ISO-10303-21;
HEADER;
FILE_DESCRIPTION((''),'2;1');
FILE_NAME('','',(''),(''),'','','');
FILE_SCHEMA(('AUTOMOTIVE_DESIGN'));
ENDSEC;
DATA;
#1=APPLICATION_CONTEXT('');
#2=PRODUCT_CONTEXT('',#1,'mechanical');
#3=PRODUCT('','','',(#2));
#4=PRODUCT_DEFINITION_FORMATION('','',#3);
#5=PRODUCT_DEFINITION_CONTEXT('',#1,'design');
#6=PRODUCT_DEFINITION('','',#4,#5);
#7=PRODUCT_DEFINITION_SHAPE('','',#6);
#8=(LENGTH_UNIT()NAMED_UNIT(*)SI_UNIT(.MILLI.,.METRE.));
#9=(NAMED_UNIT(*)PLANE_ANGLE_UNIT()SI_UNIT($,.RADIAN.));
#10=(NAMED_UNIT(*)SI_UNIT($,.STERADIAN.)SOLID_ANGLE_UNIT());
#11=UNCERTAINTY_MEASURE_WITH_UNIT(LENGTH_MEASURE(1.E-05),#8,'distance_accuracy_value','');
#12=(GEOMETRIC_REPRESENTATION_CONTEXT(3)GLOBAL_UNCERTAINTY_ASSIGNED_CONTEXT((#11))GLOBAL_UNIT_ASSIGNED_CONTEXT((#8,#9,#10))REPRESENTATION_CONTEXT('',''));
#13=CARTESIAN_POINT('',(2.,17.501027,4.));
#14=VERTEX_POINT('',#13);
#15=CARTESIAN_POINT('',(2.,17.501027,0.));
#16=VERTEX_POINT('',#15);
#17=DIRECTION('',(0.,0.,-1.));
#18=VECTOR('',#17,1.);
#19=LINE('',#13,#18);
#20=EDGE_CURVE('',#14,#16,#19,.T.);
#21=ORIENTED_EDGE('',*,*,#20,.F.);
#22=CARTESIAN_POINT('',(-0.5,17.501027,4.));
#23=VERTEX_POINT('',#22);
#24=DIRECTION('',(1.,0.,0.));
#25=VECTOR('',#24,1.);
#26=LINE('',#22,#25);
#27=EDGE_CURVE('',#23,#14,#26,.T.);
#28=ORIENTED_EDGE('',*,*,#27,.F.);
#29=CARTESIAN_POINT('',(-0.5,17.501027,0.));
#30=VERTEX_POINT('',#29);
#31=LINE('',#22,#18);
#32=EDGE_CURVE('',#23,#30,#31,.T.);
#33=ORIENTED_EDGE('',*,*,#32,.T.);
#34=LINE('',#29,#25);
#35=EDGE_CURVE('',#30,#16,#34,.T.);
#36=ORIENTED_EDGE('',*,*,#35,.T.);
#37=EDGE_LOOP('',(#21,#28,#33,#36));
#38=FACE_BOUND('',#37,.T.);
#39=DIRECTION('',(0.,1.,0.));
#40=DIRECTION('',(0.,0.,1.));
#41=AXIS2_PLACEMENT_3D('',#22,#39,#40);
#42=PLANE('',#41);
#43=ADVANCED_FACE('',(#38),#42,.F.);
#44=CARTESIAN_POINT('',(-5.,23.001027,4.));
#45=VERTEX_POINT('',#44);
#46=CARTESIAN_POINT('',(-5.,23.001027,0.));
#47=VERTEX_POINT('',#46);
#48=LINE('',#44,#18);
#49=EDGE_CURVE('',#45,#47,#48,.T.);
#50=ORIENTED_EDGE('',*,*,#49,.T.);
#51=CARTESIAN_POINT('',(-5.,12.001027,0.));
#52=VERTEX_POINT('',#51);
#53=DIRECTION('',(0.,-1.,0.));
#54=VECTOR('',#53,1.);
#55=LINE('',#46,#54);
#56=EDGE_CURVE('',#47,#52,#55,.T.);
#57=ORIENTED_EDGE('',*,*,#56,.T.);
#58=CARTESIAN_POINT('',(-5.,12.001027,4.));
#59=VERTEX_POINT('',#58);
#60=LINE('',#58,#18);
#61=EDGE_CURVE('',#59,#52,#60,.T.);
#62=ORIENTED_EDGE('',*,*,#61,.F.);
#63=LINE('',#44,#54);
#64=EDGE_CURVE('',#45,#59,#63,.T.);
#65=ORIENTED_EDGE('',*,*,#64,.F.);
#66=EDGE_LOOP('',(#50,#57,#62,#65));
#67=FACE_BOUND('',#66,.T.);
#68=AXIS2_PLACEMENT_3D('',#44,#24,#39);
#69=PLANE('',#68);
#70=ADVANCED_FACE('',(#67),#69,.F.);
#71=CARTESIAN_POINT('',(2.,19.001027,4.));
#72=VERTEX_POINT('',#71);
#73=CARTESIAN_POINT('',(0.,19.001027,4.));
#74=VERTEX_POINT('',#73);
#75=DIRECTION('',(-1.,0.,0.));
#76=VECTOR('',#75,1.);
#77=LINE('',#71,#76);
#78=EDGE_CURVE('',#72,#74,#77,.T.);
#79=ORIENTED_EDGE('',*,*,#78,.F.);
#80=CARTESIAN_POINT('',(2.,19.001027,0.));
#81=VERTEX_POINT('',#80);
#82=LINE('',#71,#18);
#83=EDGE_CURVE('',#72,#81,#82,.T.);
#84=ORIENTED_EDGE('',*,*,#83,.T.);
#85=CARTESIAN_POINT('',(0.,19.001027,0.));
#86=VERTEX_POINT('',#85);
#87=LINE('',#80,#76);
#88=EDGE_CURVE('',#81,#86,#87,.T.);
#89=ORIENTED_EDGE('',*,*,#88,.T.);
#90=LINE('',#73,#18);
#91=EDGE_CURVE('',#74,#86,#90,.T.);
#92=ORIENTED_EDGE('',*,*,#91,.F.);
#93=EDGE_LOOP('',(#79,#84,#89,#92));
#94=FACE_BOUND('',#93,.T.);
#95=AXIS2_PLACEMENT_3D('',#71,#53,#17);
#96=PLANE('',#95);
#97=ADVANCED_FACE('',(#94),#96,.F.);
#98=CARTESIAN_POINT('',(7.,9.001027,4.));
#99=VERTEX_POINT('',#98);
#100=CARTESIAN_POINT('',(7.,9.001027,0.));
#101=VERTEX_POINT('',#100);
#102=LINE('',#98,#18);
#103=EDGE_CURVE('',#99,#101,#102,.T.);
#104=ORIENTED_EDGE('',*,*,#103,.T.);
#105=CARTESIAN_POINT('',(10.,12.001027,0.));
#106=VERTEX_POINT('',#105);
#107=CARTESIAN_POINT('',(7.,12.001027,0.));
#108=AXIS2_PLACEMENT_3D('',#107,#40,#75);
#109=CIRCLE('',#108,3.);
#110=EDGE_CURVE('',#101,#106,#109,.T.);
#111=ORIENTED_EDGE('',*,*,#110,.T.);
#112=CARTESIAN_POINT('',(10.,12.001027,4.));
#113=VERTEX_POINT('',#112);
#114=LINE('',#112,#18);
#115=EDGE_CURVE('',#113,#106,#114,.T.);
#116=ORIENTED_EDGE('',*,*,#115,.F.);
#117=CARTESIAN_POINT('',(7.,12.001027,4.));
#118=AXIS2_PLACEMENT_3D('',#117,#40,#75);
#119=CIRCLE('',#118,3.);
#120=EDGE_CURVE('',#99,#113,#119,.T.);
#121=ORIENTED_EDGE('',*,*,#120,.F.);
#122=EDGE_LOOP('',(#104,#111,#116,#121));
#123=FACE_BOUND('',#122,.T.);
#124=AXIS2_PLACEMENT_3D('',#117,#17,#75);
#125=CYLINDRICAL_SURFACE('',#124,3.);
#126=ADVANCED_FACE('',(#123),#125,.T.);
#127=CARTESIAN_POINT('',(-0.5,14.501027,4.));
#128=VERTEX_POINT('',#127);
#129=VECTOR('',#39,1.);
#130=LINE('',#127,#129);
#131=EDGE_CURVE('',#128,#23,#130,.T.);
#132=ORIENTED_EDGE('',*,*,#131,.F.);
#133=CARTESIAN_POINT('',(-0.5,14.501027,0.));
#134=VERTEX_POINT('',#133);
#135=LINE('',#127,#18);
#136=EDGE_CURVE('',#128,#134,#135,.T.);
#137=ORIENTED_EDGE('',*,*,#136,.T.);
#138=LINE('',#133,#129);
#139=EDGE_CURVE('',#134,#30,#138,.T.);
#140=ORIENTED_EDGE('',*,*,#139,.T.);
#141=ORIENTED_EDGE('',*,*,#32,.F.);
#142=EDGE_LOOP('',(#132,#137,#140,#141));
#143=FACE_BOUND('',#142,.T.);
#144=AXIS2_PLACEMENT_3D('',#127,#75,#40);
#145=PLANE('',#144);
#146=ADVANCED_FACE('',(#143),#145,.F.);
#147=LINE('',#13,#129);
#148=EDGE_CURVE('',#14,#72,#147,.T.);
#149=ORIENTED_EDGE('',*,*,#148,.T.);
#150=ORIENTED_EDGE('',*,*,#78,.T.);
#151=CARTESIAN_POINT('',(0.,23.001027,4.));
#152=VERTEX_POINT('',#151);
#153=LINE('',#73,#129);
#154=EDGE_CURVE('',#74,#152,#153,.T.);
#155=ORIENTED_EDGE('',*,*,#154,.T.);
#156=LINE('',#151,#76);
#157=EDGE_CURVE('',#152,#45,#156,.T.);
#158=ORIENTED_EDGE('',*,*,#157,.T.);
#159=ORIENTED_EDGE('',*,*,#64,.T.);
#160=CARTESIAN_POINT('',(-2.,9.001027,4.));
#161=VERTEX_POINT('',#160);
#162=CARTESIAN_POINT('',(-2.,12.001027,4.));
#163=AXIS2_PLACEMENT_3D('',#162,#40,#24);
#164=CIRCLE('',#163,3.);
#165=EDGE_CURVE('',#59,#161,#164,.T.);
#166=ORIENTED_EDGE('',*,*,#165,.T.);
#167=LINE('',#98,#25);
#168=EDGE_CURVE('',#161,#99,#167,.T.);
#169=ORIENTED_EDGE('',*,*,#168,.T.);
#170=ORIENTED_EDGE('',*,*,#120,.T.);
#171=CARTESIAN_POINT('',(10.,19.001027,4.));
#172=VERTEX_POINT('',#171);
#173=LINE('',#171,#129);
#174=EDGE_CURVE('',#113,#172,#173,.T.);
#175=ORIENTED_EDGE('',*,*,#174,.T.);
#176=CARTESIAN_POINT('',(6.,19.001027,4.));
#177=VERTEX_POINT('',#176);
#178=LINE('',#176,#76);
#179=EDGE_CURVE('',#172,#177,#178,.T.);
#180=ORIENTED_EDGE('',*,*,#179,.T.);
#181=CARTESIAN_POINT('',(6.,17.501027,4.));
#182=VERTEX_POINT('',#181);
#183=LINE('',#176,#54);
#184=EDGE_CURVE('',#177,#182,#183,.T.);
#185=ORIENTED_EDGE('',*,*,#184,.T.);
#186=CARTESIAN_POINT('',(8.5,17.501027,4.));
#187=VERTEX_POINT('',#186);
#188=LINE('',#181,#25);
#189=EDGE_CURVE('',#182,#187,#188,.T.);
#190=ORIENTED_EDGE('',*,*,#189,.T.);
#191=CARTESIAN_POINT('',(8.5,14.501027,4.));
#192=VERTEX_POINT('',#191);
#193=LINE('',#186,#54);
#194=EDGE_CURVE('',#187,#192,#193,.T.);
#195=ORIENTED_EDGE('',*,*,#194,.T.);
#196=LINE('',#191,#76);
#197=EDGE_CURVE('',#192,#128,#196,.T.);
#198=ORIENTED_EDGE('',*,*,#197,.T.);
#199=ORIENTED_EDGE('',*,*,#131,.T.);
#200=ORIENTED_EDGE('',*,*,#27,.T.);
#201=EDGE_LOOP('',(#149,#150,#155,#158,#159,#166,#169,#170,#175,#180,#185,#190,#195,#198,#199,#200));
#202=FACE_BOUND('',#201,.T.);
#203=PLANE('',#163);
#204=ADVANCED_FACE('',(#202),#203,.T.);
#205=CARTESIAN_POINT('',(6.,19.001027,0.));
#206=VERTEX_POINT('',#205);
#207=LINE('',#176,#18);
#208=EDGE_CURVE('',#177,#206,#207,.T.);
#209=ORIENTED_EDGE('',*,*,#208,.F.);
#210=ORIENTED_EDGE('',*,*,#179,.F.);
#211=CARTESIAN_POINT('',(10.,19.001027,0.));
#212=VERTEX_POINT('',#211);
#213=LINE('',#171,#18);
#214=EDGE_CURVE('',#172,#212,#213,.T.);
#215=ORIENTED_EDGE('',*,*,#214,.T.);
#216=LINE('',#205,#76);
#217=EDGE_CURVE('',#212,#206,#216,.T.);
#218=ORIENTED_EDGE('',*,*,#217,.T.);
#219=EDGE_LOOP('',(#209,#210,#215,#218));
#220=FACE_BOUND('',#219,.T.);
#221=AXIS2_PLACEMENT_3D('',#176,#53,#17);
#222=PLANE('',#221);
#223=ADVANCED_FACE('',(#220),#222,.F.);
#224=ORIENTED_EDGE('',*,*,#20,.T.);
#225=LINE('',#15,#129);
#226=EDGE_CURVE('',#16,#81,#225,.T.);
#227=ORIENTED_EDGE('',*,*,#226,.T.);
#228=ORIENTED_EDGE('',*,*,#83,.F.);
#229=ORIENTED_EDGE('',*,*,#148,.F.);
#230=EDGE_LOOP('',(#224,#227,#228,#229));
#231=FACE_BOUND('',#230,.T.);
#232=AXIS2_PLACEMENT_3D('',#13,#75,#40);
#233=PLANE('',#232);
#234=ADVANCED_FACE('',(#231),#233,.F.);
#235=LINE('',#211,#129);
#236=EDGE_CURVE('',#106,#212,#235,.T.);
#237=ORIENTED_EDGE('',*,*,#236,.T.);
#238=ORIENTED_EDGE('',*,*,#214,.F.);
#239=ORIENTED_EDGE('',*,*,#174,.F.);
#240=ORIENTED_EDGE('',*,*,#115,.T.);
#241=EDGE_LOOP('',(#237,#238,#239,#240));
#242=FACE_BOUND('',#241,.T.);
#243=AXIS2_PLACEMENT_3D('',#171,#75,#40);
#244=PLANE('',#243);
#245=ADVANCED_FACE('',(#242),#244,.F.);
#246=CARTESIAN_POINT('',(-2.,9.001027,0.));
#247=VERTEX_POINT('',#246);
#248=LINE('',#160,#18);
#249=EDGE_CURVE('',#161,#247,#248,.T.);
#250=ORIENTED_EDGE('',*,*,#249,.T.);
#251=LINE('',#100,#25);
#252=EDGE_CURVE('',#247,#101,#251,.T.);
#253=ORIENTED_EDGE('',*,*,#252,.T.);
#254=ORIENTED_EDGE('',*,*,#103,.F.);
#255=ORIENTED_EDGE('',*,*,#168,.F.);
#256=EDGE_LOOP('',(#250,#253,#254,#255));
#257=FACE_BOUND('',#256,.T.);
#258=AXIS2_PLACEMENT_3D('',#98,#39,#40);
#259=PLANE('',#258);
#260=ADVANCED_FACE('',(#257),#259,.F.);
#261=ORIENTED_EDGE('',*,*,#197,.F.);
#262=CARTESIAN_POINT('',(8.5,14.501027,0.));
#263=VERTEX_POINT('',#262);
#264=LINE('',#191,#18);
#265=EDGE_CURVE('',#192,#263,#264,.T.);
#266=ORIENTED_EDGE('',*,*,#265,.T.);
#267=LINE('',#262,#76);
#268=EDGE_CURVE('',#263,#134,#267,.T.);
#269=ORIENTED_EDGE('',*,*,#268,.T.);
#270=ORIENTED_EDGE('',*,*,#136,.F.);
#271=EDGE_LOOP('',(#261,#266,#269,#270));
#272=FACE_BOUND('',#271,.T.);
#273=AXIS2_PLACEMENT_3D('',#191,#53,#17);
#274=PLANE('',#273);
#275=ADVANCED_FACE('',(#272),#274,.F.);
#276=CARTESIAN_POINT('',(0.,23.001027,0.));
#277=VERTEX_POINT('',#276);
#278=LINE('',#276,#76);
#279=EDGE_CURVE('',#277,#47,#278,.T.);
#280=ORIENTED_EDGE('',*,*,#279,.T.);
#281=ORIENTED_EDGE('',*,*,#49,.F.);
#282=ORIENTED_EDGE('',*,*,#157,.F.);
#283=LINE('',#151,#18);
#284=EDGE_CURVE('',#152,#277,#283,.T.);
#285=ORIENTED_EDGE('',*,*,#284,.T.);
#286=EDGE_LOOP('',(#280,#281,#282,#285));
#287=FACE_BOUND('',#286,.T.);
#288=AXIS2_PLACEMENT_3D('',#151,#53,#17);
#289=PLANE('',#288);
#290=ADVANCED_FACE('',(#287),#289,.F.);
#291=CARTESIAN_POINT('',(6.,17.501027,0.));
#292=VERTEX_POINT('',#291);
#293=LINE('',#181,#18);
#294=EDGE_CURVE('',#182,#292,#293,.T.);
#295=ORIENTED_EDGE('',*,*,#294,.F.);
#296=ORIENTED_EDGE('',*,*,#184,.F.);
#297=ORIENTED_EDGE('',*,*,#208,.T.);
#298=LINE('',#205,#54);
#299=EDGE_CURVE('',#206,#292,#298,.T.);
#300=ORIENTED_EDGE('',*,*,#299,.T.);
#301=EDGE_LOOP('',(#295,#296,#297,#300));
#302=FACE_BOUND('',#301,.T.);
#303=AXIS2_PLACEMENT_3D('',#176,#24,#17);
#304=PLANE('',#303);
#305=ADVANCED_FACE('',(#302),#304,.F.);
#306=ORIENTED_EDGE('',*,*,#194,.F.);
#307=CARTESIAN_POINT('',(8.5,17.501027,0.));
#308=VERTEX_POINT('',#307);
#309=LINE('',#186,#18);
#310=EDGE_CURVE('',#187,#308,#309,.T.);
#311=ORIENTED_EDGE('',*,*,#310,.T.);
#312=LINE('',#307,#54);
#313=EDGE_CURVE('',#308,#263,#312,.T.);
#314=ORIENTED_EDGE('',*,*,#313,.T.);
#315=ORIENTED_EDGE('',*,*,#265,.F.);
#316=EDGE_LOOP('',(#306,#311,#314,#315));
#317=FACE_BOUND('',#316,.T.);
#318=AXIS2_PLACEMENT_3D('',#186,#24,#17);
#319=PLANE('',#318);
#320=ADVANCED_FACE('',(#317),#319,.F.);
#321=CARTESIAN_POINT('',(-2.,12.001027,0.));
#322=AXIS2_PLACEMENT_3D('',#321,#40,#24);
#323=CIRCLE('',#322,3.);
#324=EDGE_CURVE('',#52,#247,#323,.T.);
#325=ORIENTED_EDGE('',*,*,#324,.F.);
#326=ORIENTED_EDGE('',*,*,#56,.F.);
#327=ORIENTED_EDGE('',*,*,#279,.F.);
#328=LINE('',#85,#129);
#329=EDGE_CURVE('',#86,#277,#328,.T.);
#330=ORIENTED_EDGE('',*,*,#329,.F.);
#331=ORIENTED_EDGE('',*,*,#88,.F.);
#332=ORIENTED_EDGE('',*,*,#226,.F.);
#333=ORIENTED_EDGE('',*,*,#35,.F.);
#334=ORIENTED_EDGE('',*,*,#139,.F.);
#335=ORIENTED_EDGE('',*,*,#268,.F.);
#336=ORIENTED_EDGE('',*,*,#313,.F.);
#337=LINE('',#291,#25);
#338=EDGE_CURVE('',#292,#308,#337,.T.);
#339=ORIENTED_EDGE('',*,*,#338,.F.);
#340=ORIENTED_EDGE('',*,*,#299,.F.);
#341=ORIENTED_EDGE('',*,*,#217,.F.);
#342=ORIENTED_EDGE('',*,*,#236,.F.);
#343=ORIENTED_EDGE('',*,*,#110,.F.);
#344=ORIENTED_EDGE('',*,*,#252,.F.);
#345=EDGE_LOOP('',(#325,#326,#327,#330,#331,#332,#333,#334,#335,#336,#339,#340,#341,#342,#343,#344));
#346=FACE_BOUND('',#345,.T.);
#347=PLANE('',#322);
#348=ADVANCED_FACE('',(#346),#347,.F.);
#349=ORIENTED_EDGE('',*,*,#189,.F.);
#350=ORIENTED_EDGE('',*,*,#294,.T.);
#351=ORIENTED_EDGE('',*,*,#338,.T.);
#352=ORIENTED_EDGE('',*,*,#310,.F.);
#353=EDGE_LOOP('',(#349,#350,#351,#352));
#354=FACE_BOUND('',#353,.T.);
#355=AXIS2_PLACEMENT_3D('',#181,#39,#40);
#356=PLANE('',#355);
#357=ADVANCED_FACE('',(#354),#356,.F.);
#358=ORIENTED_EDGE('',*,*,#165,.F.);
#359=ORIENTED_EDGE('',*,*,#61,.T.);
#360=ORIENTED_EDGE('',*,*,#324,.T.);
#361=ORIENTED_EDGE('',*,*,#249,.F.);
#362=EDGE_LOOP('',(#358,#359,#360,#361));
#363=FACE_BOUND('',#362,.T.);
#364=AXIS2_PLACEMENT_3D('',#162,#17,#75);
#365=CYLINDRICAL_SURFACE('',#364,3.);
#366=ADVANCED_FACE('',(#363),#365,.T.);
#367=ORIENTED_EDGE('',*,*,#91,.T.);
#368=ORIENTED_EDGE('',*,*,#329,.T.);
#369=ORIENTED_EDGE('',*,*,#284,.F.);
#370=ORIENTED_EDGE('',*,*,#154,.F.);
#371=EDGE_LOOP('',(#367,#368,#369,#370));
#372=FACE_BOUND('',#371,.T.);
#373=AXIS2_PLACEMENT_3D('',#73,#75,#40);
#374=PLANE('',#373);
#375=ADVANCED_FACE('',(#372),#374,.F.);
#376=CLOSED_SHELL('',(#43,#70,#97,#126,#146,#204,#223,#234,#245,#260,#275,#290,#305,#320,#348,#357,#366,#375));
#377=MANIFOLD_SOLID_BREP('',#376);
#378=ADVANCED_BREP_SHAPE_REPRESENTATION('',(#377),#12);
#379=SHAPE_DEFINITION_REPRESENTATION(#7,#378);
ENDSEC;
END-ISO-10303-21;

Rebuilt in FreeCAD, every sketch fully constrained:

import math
import FreeCAD as App
import Part
import Sketcher
from FreeCAD import Vector

doc = App.newDocument("Part")
body = doc.addObject("PartDesign::Body", "Body")

sketch1 = doc.addObject("Sketcher::SketchObject", "Sketch")
body.addObject(sketch1)
sketch1.AttachmentSupport = (doc.XY_Plane, [""])
sketch1.MapMode = "FlatFace"
sketch1.addGeometry([
    Part.LineSegment(Vector(0, 23.001027, 0), Vector(-5, 23.001027, 0)),
    Part.LineSegment(Vector(-5, 23.001027, 0), Vector(-5, 12.001027, 0)),
    Part.ArcOfCircle(Part.Circle(Vector(-2, 12.001027, 0), Vector(0, 0, 1), 3), math.radians(180), math.radians(270)),
    Part.LineSegment(Vector(-2, 9.001027, 0), Vector(7, 9.001027, 0)),
    Part.ArcOfCircle(Part.Circle(Vector(7, 12.001027, 0), Vector(0, 0, 1), 3), math.radians(-90), math.radians(0)),
    Part.LineSegment(Vector(10, 12.001027, 0), Vector(10, 19.001027, 0)),
    Part.LineSegment(Vector(10, 19.001027, 0), Vector(6, 19.001027, 0)),
    Part.LineSegment(Vector(6, 19.001027, 0), Vector(6, 17.501027, 0)),
    Part.LineSegment(Vector(6, 17.501027, 0), Vector(8.5, 17.501027, 0)),
    Part.LineSegment(Vector(8.5, 17.501027, 0), Vector(8.5, 14.501027, 0)),
    Part.LineSegment(Vector(8.5, 14.501027, 0), Vector(-0.5, 14.501027, 0)),
    Part.LineSegment(Vector(-0.5, 14.501027, 0), Vector(-0.5, 17.501027, 0)),
    Part.LineSegment(Vector(-0.5, 17.501027, 0), Vector(2, 17.501027, 0)),
    Part.LineSegment(Vector(2, 17.501027, 0), Vector(2, 19.001027, 0)),
    Part.LineSegment(Vector(2, 19.001027, 0), Vector(0, 19.001027, 0)),
    Part.LineSegment(Vector(0, 19.001027, 0), Vector(0, 23.001027, 0)),
], False)
sketch1.addConstraint([
    Sketcher.Constraint("Coincident", 0, 2, 1, 1),
    Sketcher.Constraint("Tangent", 1, 2, 2, 1),
    Sketcher.Constraint("Tangent", 2, 2, 3, 1),
    Sketcher.Constraint("Tangent", 3, 2, 4, 1),
    Sketcher.Constraint("Tangent", 4, 2, 5, 1),
    Sketcher.Constraint("Coincident", 5, 2, 6, 1),
    Sketcher.Constraint("Coincident", 6, 2, 7, 1),
    Sketcher.Constraint("Coincident", 7, 2, 8, 1),
    Sketcher.Constraint("Coincident", 8, 2, 9, 1),
    Sketcher.Constraint("Coincident", 9, 2, 10, 1),
    Sketcher.Constraint("Coincident", 10, 2, 11, 1),
    Sketcher.Constraint("Coincident", 11, 2, 12, 1),
    Sketcher.Constraint("Coincident", 12, 2, 13, 1),
    Sketcher.Constraint("Coincident", 13, 2, 14, 1),
    Sketcher.Constraint("Coincident", 14, 2, 15, 1),
    Sketcher.Constraint("Coincident", 15, 2, 0, 1),
    Sketcher.Constraint("Horizontal", 0),
    Sketcher.Constraint("Vertical", 1),
    Sketcher.Constraint("Horizontal", 3),
    Sketcher.Constraint("Vertical", 5),
    Sketcher.Constraint("Horizontal", 6),
    Sketcher.Constraint("Vertical", 7),
    Sketcher.Constraint("Horizontal", 8),
    Sketcher.Constraint("Vertical", 9),
    Sketcher.Constraint("Horizontal", 10),
    Sketcher.Constraint("Vertical", 11),
    Sketcher.Constraint("Horizontal", 12),
    Sketcher.Constraint("Vertical", 13),
    Sketcher.Constraint("Horizontal", 14),
    Sketcher.Constraint("Vertical", 15),
    Sketcher.Constraint("Equal", 2, 4),
    Sketcher.Constraint("PointOnObject", 14, 2, -2),
    Sketcher.Constraint("Horizontal", 8, 2, 11, 2),
    Sketcher.Constraint("Horizontal", 6, 2, 13, 2),
    Sketcher.Constraint("Equal", 3, 10),
    Sketcher.Constraint("Equal", 8, 12),
    Sketcher.Constraint("Equal", 6, 15),
    Sketcher.Constraint("Radius", 2, 3.0),
    Sketcher.Constraint("DistanceX", 0, 2, 0, 1, 5.0),
    Sketcher.Constraint("DistanceX", 3, 1, 3, 2, 9.0),
    Sketcher.Constraint("DistanceX", 6, 2, 6, 1, 4.0),
    Sketcher.Constraint("DistanceX", 14, 2, 14, 1, 2.0),
    Sketcher.Constraint("DistanceY", 1, 2, 1, 1, 11.0),
    Sketcher.Constraint("DistanceY", 9, 2, 9, 1, 3.0),
    Sketcher.Constraint("DistanceY", 7, 2, 7, 1, 1.5),
    Sketcher.Constraint("DistanceY", -1, 1, 2, 3, 12.001027),
])
pad1 = doc.addObject("PartDesign::Pad", "Pad")
body.addObject(pad1)
pad1.Profile = sketch1
pad1.Length = 4

doc.recompute()
